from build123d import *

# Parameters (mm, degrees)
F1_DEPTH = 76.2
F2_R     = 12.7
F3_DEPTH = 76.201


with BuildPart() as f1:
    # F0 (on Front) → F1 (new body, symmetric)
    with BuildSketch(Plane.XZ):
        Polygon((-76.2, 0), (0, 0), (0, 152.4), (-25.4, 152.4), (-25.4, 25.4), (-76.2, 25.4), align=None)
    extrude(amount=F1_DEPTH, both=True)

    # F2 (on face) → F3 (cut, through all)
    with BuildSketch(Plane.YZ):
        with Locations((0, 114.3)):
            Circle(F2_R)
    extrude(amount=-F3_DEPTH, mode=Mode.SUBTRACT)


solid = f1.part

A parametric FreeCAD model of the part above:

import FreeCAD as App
import Part
import Sketcher

V = App.Vector
Q = App.Units.Quantity


def add_polygon(sketch, points):
    """Adds a closed chain of lines whose ends are joined by coincident constraints."""
    first, n = sketch.GeometryCount, len(points)
    for a, b in zip(points, points[1:] + points[:1]):
        sketch.addGeometry(Part.LineSegment(App.Vector(*a, 0), App.Vector(*b, 0)), False)
    for i in range(n):
        sketch.addConstraint(Sketcher.Constraint("Coincident", first + i, 2, first + (i + 1) % n, 1))

doc = App.newDocument("Part")
body = doc.addObject("PartDesign::Body", "Body")

# Sketch on XZ plane
sketch1 = body.newObject("Sketcher::SketchObject", "Sketch")
sketch1.AttachmentSupport = (doc.getObject("XZ_Plane"), [""])
sketch1.MapMode = "FlatFace"
add_polygon(sketch1, [(-76, 0), (0, 0), (0, 152), (-25, 152), (-25, 25), (-76, 25)])  # lines 0-5
sketch1.addConstraint([
    Sketcher.Constraint("Horizontal", 0),
    Sketcher.Constraint("Vertical", 1),
    Sketcher.Constraint("Horizontal", 2),
    Sketcher.Constraint("Vertical", 3),
    Sketcher.Constraint("Horizontal", 4),
    Sketcher.Constraint("Vertical", 5),
    Sketcher.Constraint("Coincident", 0, 2, -1, 1),
    Sketcher.Constraint("Equal", 2, 5),
    Sketcher.Constraint("DistanceX", 0, 1, 0, 2, Q("3 in")),
    Sketcher.Constraint("DistanceX", 2, 2, 2, 1, Q("1 in")),
    Sketcher.Constraint("DistanceY", 1, 1, 1, 2, Q("6 in")),
])
pad1 = body.newObject("PartDesign::Pad", "Pad")
pad1.Profile = sketch1
pad1.Length = Q("6 in")
pad1.Midplane = True

# Sketch on YZ plane
sketch2 = body.newObject("Sketcher::SketchObject", "Sketch001")
sketch2.AttachmentSupport = (doc.getObject("YZ_Plane"), [""])
sketch2.MapMode = "FlatFace"
sketch2.addGeometry(Part.Circle(V(0, 114, 0), V(0, 0, 1), 13), False)
sketch2.addConstraint([
    Sketcher.Constraint("PointOnObject", 0, 3, -2),
    Sketcher.Constraint("Diameter", 0, Q("1 in")),
    Sketcher.Constraint("DistanceY", -1, 1, 0, 3, Q("4.5 in")),
])
pocket1 = body.newObject("PartDesign::Pocket", "Pocket")
pocket1.Profile = sketch2
pocket1.Type = "ThroughAll"

doc.recompute()
